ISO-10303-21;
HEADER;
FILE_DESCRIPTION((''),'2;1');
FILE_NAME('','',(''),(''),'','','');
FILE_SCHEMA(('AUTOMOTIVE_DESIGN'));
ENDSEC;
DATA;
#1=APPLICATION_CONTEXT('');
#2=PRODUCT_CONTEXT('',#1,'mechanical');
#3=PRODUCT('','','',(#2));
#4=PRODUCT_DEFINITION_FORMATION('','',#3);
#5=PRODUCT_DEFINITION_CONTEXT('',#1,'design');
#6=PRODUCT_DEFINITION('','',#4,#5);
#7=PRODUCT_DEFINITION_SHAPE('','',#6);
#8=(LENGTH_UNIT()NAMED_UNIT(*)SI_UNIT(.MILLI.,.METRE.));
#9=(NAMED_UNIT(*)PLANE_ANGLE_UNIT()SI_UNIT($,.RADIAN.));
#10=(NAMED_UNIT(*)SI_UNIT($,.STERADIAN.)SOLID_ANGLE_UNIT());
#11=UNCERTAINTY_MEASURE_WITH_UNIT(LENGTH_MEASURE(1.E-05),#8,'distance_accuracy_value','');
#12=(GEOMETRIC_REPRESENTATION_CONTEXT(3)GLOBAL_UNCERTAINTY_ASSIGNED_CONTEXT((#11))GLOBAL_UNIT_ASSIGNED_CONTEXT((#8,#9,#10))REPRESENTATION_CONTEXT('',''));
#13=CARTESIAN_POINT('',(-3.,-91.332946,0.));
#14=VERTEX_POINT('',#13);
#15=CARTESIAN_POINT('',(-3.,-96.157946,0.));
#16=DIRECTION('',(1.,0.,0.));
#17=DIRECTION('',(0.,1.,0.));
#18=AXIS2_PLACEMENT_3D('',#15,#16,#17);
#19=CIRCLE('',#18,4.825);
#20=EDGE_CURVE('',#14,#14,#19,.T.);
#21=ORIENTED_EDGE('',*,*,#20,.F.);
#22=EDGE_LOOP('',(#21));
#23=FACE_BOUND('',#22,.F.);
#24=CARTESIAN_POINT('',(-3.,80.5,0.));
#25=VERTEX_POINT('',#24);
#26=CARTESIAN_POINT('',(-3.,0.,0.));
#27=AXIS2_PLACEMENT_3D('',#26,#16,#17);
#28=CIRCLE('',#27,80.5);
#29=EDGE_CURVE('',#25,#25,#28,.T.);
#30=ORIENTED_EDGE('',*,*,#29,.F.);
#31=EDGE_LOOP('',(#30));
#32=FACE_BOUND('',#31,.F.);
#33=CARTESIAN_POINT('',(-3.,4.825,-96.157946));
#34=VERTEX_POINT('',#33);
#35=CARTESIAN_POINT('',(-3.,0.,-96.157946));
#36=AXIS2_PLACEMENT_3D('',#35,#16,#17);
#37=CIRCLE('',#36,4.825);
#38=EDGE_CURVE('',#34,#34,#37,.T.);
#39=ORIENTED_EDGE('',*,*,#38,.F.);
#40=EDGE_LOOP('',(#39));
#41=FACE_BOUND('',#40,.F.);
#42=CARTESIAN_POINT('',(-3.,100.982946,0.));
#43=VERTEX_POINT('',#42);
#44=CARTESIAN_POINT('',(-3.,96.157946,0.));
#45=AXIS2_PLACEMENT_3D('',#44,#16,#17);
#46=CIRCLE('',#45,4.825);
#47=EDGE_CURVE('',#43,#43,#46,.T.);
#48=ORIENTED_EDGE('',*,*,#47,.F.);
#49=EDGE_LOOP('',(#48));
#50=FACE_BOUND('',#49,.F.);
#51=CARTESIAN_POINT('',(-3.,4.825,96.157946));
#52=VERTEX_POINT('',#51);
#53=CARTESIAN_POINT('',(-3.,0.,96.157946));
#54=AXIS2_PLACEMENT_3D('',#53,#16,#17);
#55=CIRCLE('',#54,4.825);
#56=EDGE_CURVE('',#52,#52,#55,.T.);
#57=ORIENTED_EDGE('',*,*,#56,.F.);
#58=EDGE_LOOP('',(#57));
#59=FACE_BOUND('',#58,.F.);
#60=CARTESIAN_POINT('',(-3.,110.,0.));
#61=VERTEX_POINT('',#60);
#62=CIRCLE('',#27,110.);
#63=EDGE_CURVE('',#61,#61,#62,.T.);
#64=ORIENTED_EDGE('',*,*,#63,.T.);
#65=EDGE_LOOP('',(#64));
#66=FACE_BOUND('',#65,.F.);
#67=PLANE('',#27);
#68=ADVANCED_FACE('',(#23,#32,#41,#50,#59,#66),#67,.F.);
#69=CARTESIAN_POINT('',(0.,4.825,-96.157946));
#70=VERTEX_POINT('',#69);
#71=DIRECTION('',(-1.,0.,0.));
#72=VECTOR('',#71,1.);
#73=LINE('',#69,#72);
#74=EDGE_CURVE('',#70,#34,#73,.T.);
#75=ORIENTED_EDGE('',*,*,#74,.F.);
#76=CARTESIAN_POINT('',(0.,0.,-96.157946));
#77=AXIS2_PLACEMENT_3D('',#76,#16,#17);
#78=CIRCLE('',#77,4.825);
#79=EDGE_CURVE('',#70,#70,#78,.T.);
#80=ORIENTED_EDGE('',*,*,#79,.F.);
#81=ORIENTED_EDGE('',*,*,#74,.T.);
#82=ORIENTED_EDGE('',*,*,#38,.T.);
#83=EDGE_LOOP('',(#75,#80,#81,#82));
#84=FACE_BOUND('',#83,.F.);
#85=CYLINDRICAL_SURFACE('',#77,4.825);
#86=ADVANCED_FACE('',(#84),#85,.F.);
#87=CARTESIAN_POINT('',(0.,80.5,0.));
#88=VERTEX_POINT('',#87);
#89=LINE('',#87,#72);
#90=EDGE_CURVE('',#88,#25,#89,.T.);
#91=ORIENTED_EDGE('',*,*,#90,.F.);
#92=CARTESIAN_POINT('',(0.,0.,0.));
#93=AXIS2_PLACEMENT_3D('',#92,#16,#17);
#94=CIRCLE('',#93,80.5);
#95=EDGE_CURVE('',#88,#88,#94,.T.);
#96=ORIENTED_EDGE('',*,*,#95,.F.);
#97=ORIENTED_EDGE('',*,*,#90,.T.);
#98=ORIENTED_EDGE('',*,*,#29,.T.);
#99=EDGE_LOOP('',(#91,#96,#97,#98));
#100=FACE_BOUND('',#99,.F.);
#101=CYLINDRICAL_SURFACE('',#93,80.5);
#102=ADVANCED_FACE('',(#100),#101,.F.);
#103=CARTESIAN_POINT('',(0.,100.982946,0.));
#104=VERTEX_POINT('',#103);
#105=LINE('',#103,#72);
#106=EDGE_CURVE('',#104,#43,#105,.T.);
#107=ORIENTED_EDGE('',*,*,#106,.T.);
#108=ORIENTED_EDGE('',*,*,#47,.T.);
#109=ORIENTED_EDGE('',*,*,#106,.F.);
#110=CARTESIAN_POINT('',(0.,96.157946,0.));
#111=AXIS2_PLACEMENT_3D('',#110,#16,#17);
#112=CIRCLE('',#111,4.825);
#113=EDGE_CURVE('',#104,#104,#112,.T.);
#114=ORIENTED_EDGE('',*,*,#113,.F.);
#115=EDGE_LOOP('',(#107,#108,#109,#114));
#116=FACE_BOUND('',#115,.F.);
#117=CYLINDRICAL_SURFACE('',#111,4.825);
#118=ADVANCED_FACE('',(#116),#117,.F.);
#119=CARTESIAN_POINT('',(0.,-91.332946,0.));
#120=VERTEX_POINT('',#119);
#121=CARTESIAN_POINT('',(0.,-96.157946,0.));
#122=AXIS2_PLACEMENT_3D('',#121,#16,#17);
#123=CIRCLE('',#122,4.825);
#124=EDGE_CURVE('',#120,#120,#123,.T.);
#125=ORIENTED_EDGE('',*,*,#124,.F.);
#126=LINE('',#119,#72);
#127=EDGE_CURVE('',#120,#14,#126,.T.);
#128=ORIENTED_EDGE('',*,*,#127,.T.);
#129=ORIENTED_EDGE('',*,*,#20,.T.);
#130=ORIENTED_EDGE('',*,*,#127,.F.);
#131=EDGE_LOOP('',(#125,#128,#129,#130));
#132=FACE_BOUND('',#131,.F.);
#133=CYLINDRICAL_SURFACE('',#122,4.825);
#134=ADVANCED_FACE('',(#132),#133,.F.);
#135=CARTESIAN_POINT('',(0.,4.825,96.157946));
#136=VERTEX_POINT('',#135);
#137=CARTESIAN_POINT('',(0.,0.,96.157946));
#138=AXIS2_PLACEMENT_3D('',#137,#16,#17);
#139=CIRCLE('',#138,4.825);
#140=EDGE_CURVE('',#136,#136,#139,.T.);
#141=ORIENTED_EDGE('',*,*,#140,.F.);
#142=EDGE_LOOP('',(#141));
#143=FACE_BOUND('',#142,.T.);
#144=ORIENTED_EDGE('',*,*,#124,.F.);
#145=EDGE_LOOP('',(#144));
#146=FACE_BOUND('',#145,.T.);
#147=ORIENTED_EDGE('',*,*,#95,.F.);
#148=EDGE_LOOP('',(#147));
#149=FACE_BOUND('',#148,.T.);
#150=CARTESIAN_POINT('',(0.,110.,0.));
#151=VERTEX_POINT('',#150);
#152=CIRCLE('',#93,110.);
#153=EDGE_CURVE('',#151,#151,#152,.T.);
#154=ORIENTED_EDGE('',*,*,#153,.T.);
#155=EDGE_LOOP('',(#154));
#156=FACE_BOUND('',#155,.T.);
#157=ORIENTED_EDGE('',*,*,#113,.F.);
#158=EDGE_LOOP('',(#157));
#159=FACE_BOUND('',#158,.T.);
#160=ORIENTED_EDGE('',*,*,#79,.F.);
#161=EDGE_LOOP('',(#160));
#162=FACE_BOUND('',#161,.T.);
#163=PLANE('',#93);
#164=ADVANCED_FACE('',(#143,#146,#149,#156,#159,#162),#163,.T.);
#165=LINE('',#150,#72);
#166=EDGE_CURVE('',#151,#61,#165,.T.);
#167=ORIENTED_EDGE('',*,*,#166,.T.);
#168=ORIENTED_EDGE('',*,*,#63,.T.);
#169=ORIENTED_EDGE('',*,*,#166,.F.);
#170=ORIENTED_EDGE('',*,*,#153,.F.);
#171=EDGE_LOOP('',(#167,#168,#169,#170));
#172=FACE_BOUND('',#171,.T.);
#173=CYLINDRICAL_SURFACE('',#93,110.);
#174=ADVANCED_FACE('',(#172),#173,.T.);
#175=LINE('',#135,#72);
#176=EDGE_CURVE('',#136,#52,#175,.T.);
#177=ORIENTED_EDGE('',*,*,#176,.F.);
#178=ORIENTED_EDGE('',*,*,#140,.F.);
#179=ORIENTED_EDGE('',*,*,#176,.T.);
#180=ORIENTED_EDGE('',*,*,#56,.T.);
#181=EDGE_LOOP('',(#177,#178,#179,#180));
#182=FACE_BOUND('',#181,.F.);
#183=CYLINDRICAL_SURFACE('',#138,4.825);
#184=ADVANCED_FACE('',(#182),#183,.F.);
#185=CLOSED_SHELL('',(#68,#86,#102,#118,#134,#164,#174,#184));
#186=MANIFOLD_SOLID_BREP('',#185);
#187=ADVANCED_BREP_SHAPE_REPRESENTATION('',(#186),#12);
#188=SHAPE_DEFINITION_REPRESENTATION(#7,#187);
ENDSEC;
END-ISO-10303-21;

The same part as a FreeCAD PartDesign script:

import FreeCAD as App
import Part
import Sketcher

V = App.Vector
Q = App.Units.Quantity

doc = App.newDocument("Part")
body = doc.addObject("PartDesign::Body", "Body")

sketch1 = body.newObject("Sketcher::SketchObject", "Sketch")
sketch1.AttachmentSupport = (doc.getObject("YZ_Plane"), [""])
sketch1.MapMode = "FlatFace"
sketch1.addGeometry([
    Part.Circle(V(0, 0, 0), V(0, 0, 1), 110),
    Part.Circle(V(0, 0, 0), V(0, 0, 1), 80),
], False)
sketch1.addConstraint([
    Sketcher.Constraint("Coincident", 0, 3, -1, 1),
    Sketcher.Constraint("Coincident", 1, 3, -1, 1),
    Sketcher.Constraint("Diameter", 0, Q("220 mm")),
    Sketcher.Constraint("Diameter", 1, Q("161 mm")),
])
pad1 = body.newObject("PartDesign::Pad", "Pad")
pad1.Profile = sketch1
pad1.Length = 3
pad1.Reversed = True

sketch2 = body.newObject("Sketcher::SketchObject", "Sketch001")
sketch2.AttachmentSupport = (doc.getObject("YZ_Plane"), [""])
sketch2.MapMode = "FlatFace"
sketch2.addGeometry([
    Part.Circle(V(0, 96.2, 0), V(0, 0, 1), 4.8),
    Part.Circle(V(-96.2, 0, 0), V(0, 0, 1), 4.8),
    Part.Circle(V(0, -96.2, 0), V(0, 0, 1), 4.8),
    Part.Circle(V(96.2, 0, 0), V(0, 0, 1), 4.8),
], False)
sketch2.addConstraint([
    Sketcher.Constraint("Equal", 0, 1),
    Sketcher.Constraint("Equal", 1, 2),
    Sketcher.Constraint("Equal", 2, 3),
    Sketcher.Constraint("Symmetric", 0, 3, 2, 3, -1, 1),
    Sketcher.Constraint("Symmetric", 1, 3, 3, 3, -1, 1),
    Sketcher.Constraint("PointOnObject", 0, 3, -2),
    Sketcher.Constraint("PointOnObject", 1, 3, -1),
    Sketcher.Constraint("Diameter", 0, Q("9.65 mm")),
    Sketcher.Constraint("DistanceY", 2, 3, 0, 3, Q("192.315892 mm")),
    Sketcher.Constraint("DistanceX", 1, 3, 3, 3, Q("192.315892 mm")),
])
pocket1 = body.newObject("PartDesign::Pocket", "Pocket")
pocket1.Profile = sketch2
pocket1.Length = 5

doc.recompute()
